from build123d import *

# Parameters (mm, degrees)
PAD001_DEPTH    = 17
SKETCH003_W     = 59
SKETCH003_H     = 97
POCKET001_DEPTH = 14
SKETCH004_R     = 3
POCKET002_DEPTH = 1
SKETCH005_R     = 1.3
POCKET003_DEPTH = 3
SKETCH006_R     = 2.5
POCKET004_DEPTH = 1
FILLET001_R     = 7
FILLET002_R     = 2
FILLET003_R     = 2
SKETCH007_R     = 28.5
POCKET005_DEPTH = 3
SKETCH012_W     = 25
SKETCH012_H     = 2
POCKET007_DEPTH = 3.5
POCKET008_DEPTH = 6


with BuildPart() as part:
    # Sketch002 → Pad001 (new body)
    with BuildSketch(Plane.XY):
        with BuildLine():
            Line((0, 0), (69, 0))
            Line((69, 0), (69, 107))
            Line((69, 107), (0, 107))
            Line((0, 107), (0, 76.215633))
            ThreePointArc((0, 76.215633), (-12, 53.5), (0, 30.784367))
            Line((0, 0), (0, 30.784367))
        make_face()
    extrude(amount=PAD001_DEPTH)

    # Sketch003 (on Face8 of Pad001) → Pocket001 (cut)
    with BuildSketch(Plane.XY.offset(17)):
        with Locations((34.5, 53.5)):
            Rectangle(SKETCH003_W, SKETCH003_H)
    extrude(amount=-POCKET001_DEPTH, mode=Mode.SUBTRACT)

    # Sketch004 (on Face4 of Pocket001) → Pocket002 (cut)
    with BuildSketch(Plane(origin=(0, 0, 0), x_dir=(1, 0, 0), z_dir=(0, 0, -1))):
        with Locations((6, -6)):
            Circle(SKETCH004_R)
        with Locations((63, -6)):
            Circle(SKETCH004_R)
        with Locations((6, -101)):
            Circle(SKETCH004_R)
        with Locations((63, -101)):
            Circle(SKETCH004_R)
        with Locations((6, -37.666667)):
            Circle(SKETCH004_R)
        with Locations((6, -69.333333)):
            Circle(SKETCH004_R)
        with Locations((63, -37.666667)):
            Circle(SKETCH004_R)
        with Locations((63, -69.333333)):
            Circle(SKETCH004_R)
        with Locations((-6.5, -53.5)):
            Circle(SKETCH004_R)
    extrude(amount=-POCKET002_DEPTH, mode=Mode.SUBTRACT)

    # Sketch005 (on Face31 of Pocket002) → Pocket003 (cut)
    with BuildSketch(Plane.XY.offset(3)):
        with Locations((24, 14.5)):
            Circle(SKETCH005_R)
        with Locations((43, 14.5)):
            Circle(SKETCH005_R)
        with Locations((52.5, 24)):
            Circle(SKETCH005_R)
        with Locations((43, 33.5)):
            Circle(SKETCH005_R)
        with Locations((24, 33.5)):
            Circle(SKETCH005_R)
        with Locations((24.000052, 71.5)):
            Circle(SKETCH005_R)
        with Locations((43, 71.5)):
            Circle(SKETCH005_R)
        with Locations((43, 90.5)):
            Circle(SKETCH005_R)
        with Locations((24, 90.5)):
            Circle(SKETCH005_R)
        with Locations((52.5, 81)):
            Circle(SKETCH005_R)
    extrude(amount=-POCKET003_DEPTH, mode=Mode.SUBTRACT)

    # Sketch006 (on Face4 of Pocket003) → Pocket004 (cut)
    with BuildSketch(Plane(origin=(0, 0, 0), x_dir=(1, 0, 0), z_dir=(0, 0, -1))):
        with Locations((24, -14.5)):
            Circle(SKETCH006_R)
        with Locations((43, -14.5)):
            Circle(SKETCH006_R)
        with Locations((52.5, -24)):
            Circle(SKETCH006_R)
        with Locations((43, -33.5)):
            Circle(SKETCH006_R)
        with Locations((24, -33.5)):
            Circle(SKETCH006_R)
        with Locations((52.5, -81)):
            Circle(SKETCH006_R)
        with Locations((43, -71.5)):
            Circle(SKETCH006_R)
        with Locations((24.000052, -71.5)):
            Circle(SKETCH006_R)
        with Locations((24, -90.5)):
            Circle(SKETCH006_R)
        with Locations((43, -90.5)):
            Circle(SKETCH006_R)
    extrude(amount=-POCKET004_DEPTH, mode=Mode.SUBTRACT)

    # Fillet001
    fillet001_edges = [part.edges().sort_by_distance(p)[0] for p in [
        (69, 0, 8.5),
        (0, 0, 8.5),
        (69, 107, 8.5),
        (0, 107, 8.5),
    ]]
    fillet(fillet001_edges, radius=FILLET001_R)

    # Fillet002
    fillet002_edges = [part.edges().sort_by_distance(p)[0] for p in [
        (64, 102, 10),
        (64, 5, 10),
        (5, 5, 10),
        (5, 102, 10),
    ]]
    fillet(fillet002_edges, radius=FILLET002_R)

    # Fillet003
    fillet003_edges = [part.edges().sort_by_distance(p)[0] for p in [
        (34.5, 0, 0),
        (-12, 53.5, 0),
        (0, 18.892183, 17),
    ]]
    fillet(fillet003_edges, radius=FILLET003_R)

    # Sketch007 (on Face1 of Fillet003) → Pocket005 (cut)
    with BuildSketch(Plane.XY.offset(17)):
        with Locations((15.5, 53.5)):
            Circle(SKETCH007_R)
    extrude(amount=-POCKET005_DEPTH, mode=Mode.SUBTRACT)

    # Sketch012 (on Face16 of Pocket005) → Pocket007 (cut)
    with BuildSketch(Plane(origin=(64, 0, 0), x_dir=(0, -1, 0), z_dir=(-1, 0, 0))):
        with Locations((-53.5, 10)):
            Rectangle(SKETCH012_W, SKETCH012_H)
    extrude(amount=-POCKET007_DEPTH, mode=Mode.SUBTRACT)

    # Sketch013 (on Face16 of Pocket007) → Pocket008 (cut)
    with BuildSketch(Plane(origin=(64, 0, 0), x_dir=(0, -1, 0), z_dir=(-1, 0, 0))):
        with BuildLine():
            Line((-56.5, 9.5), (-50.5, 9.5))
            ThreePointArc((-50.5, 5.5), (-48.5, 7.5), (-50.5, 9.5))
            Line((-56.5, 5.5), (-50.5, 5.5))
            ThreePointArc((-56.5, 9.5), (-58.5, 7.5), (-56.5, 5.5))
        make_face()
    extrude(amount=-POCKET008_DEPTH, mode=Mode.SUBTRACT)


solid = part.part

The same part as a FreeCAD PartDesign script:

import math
import FreeCAD as App
import Part
import Sketcher
from FreeCAD import Vector
Q = App.Units.Quantity


def edges_at(feature, points):
    """Names of the edges that pass closest to the given points."""
    edges = feature.Shape.Edges
    near = lambda p: min(range(len(edges)), key=lambda i: edges[i].distToShape(Part.Vertex(*p))[0])
    return sorted({f"Edge{near(p) + 1}" for p in points})

doc = App.newDocument("Part")
body = doc.addObject("PartDesign::Body", "Body")

# Sketch on XY plane
sketch1 = body.newObject("Sketcher::SketchObject", "Sketch")
sketch1.AttachmentSupport = (doc.getObject("XY_Plane"), [""])
sketch1.MapMode = "FlatFace"
sketch1.addGeometry([
    Part.LineSegment(Vector(0, 0, 0), Vector(69, 0, 0)),  # 0
    Part.LineSegment(Vector(69, 0, 0), Vector(69, 107, 0)),  # 1
    Part.LineSegment(Vector(69, 107, 0), Vector(0, 107, 0)),  # 2
    Part.LineSegment(Vector(0, 107, 0), Vector(0, 76.215633, 0)),  # 3
    Part.ArcOfCircle(Part.Circle(Vector(15.499999, 53.5, 0), Vector(0, 0, 1), 27.499999), math.radians(124.307651), math.radians(235.692349)),  # 4
    Part.LineSegment(Vector(0, 30.784367, 0), Vector(0, 0, 0)),  # 5
], False)
sketch1.addConstraint([
    Sketcher.Constraint("Coincident", 0, 2, 1, 1),
    Sketcher.Constraint("Coincident", 1, 2, 2, 1),
    Sketcher.Constraint("Coincident", 2, 2, 3, 1),
    Sketcher.Constraint("Coincident", 3, 2, 4, 1),
    Sketcher.Constraint("Coincident", 4, 2, 5, 1),
    Sketcher.Constraint("Coincident", 5, 2, 0, 1),
    Sketcher.Constraint("Horizontal", 0),
    Sketcher.Constraint("Vertical", 1),
    Sketcher.Constraint("Horizontal", 2),
    Sketcher.Constraint("Vertical", 3),
    Sketcher.Constraint("Vertical", 5),
    Sketcher.Constraint("Coincident", 5, 2, -1, 1),
    Sketcher.Constraint("PointOnObject", 2, 2, -2),
    Sketcher.Constraint("Equal", 3, 5),
    Sketcher.Constraint("Radius", 4, Q("27.499999 mm")),
    Sketcher.Constraint("DistanceX", 0, 1, 0, 2, Q("69 mm")),
    Sketcher.Constraint("DistanceY", 1, 1, 1, 2, Q("107 mm")),
    Sketcher.Constraint("DistanceX", -1, 1, 4, 3, Q("15.499999 mm")),
])
pad1 = body.newObject("PartDesign::Pad", "Pad")
pad1.Profile = sketch1
pad1.Length = 17

# Sketch on XY plane
sketch2 = body.newObject("Sketcher::SketchObject", "Sketch001")
sketch2.AttachmentSupport = (doc.getObject("XY_Plane"), [""])
sketch2.MapMode = "FlatFace"
sketch2.AttachmentOffset = App.Placement(Vector(0, 0, 17), App.Rotation())
sketch2.addGeometry([
    Part.LineSegment(Vector(5, 102, 0), Vector(5, 5, 0)),
    Part.LineSegment(Vector(5, 5, 0), Vector(64, 5, 0)),
    Part.LineSegment(Vector(64, 5, 0), Vector(64, 102, 0)),
    Part.LineSegment(Vector(64, 102, 0), Vector(5, 102, 0)),
], False)
sketch2.addConstraint([
    Sketcher.Constraint("Coincident", 0, 2, 1, 1),
    Sketcher.Constraint("Coincident", 1, 2, 2, 1),
    Sketcher.Constraint("Coincident", 2, 2, 3, 1),
    Sketcher.Constraint("Coincident", 3, 2, 0, 1),
    Sketcher.Constraint("Vertical", 0),
    Sketcher.Constraint("Horizontal", 1),
    Sketcher.Constraint("Vertical", 2),
    Sketcher.Constraint("Horizontal", 3),
    Sketcher.Constraint("DistanceX", 1, 1, 1, 2, Q("59 mm")),
    Sketcher.Constraint("DistanceY", 0, 2, 0, 1, Q("97 mm")),
    Sketcher.Constraint("DistanceX", -1, 1, 0, 2, Q("5 mm")),
    Sketcher.Constraint("DistanceY", -1, 1, 0, 2, Q("5 mm")),
])
pocket1 = body.newObject("PartDesign::Pocket", "Pocket")
pocket1.Profile = sketch2
pocket1.Length = 14

# Sketch on XY plane
sketch3 = body.newObject("Sketcher::SketchObject", "Sketch002")
sketch3.AttachmentSupport = (doc.getObject("XY_Plane"), [""])
sketch3.MapMode = "FlatFace"
sketch3.addGeometry([
    Part.Circle(Vector(6, 6, 0), Vector(0, 0, 1), 3),  # 0
    Part.Circle(Vector(63, 6, 0), Vector(0, 0, 1), 3),  # 1
    Part.Circle(Vector(6, 101, 0), Vector(0, 0, 1), 3),  # 2
    Part.Circle(Vector(63, 101, 0), Vector(0, 0, 1), 3),  # 3
    Part.Circle(Vector(6, 37.666667, 0), Vector(0, 0, 1), 3),  # 4
    Part.Circle(Vector(6, 69.333333, 0), Vector(0, 0, 1), 3),  # 5
    Part.Circle(Vector(63, 37.666667, 0), Vector(0, 0, 1), 3),  # 6
    Part.Circle(Vector(63, 69.333333, 0), Vector(0, 0, 1), 3),  # 7
    Part.Circle(Vector(-6.5, 53.5, 0), Vector(0, 0, 1), 3),  # 8
], False)
sketch3.addConstraint([
    Sketcher.Constraint("Equal", 0, 1),
    Sketcher.Constraint("Equal", 1, 2),
    Sketcher.Constraint("Equal", 2, 3),
    Sketcher.Constraint("Equal", 3, 4),
    Sketcher.Constraint("Equal", 4, 5),
    Sketcher.Constraint("Equal", 5, 6),
    Sketcher.Constraint("Equal", 6, 7),
    Sketcher.Constraint("Equal", 7, 8),
    Sketcher.Constraint("Horizontal", 0, 3, 1, 3),
    Sketcher.Constraint("Horizontal", 2, 3, 3, 3),
    Sketcher.Constraint("Horizontal", 4, 3, 6, 3),
    Sketcher.Constraint("Horizontal", 5, 3, 7, 3),
    Sketcher.Constraint("Vertical", 0, 3, 2, 3),
    Sketcher.Constraint("Vertical", 1, 3, 3, 3),
    Sketcher.Constraint("Vertical", 2, 3, 4, 3),
    Sketcher.Constraint("Vertical", 4, 3, 5, 3),
    Sketcher.Constraint("Vertical", 3, 3, 6, 3),
    Sketcher.Constraint("Vertical", 6, 3, 7, 3),
    Sketcher.Constraint("Diameter", 0, Q("6 mm")),
    Sketcher.Constraint("DistanceX", -1, 1, 0, 3, Q("6 mm")),
    Sketcher.Constraint("DistanceY", -1, 1, 0, 3, Q("6 mm")),
    Sketcher.Constraint("DistanceX", -1, 1, 1, 3, Q("63 mm")),
    Sketcher.Constraint("DistanceY", -1, 1, 2, 3, Q("101 mm")),
    Sketcher.Constraint("DistanceX", 8, 3, -1, 1, Q("6.5 mm")),
    Sketcher.Constraint("DistanceY", -1, 1, 8, 3, Q("53.5 mm")),
    Sketcher.Constraint("DistanceY", -1, 1, 4, 3, Q("37.666667 mm")),
    Sketcher.Constraint("DistanceY", -1, 1, 5, 3, Q("69.333333 mm")),
])
pocket2 = body.newObject("PartDesign::Pocket", "Pocket001")
pocket2.Profile = sketch3
pocket2.Length = 1
pocket2.Reversed = True

# Sketch on XY plane
sketch4 = body.newObject("Sketcher::SketchObject", "Sketch003")
sketch4.AttachmentSupport = (doc.getObject("XY_Plane"), [""])
sketch4.MapMode = "FlatFace"
sketch4.AttachmentOffset = App.Placement(Vector(0, 0, 3), App.Rotation())
sketch4.addGeometry([
    Part.Circle(Vector(24, 14.5, 0), Vector(0, 0, 1), 1.3),  # 0
    Part.Circle(Vector(43, 14.5, 0), Vector(0, 0, 1), 1.3),  # 1
    Part.Circle(Vector(52.5, 24, 0), Vector(0, 0, 1), 1.3),  # 2
    Part.Circle(Vector(43, 33.5, 0), Vector(0, 0, 1), 1.3),  # 3
    Part.Circle(Vector(24, 33.5, 0), Vector(0, 0, 1), 1.3),  # 4
    Part.Circle(Vector(24.000052, 71.5, 0), Vector(0, 0, 1), 1.3),  # 5
    Part.Circle(Vector(43, 71.5, 0), Vector(0, 0, 1), 1.3),  # 6
    Part.Circle(Vector(43, 90.5, 0), Vector(0, 0, 1), 1.3),  # 7
    Part.Circle(Vector(24, 90.5, 0), Vector(0, 0, 1), 1.3),  # 8
    Part.Circle(Vector(52.5, 81, 0), Vector(0, 0, 1), 1.3),  # 9
], False)
sketch4.addConstraint([
    Sketcher.Constraint("Equal", 0, 1),
    Sketcher.Constraint("Equal", 1, 2),
    Sketcher.Constraint("Equal", 2, 3),
    Sketcher.Constraint("Equal", 3, 4),
    Sketcher.Constraint("Equal", 4, 5),
    Sketcher.Constraint("Equal", 5, 6),
    Sketcher.Constraint("Equal", 6, 7),
    Sketcher.Constraint("Equal", 7, 8),
    Sketcher.Constraint("Equal", 8, 9),
    Sketcher.Constraint("Horizontal", 0, 3, 1, 3),
    Sketcher.Constraint("Horizontal", 3, 3, 4, 3),
    Sketcher.Constraint("Horizontal", 5, 3, 6, 3),
    Sketcher.Constraint("Horizontal", 7, 3, 8, 3),
    Sketcher.Constraint("Vertical", 1, 3, 3, 3),
    Sketcher.Constraint("Vertical", 0, 3, 4, 3),
    Sketcher.Constraint("Vertical", 3, 3, 6, 3),
    Sketcher.Constraint("Vertical", 6, 3, 7, 3),
    Sketcher.Constraint("Vertical", 4, 3, 8, 3),
    Sketcher.Constraint("Vertical", 2, 3, 9, 3),
    Sketcher.Constraint("Diameter", 0, Q("2.6 mm")),
    Sketcher.Constraint("DistanceX", -1, 1, 0, 3, Q("24 mm")),
    Sketcher.Constraint("DistanceX", -1, 1, 1, 3, Q("43 mm")),
    Sketcher.Constraint("DistanceY", -1, 1, 2, 3, Q("24 mm")),
    Sketcher.Constraint("DistanceY", -1, 1, 9, 3, Q("81 mm")),
    Sketcher.Constraint("DistanceY", 1, 3, 3, 3, Q("19 mm")),
    Sketcher.Constraint("DistanceY", 4, 3, 5, 3, Q("38 mm")),
    Sketcher.Constraint("DistanceY", 6, 3, 7, 3, Q("19 mm")),
    Sketcher.Constraint("DistanceY", -1, 1, 0, 3, Q("14.5 mm")),
    Sketcher.Constraint("DistanceX", -1, 1, 2, 3, Q("52.5 mm")),
    Sketcher.Constraint("DistanceX", -1, 1, 5, 3, Q("24.000052 mm")),
])
pocket3 = body.newObject("PartDesign::Pocket", "Pocket002")
pocket3.Profile = sketch4
pocket3.Length = 3

# Sketch on XY plane
sketch5 = body.newObject("Sketcher::SketchObject", "Sketch004")
sketch5.AttachmentSupport = (doc.getObject("XY_Plane"), [""])
sketch5.MapMode = "FlatFace"
sketch5.addGeometry([
    Part.Circle(Vector(24, 14.5, 0), Vector(0, 0, 1), 2.5),  # 0
    Part.Circle(Vector(43, 14.5, 0), Vector(0, 0, 1), 2.5),  # 1
    Part.Circle(Vector(52.5, 24, 0), Vector(0, 0, 1), 2.5),  # 2
    Part.Circle(Vector(43, 33.5, 0), Vector(0, 0, 1), 2.5),  # 3
    Part.Circle(Vector(24, 33.5, 0), Vector(0, 0, 1), 2.5),  # 4
    Part.Circle(Vector(52.5, 81, 0), Vector(0, 0, 1), 2.5),  # 5
    Part.Circle(Vector(43, 71.5, 0), Vector(0, 0, 1), 2.5),  # 6
    Part.Circle(Vector(24.000052, 71.5, 0), Vector(0, 0, 1), 2.5),  # 7
    Part.Circle(Vector(24, 90.5, 0), Vector(0, 0, 1), 2.5),  # 8
    Part.Circle(Vector(43, 90.5, 0), Vector(0, 0, 1), 2.5),  # 9
], False)
sketch5.addConstraint([
    Sketcher.Constraint("Equal", 0, 1),
    Sketcher.Constraint("Equal", 1, 2),
    Sketcher.Constraint("Equal", 2, 3),
    Sketcher.Constraint("Equal", 3, 4),
    Sketcher.Constraint("Equal", 4, 5),
    Sketcher.Constraint("Equal", 5, 6),
    Sketcher.Constraint("Equal", 6, 7),
    Sketcher.Constraint("Equal", 7, 8),
    Sketcher.Constraint("Equal", 8, 9),
    Sketcher.Constraint("Horizontal", 0, 3, 1, 3),
    Sketcher.Constraint("Horizontal", 3, 3, 4, 3),
    Sketcher.Constraint("Horizontal", 6, 3, 7, 3),
    Sketcher.Constraint("Horizontal", 8, 3, 9, 3),
    Sketcher.Constraint("Vertical", 1, 3, 3, 3),
    Sketcher.Constraint("Vertical", 0, 3, 4, 3),
    Sketcher.Constraint("Vertical", 2, 3, 5, 3),
    Sketcher.Constraint("Vertical", 3, 3, 6, 3),
    Sketcher.Constraint("Vertical", 4, 3, 8, 3),
    Sketcher.Constraint("Vertical", 6, 3, 9, 3),
    Sketcher.Constraint("Diameter", 0, Q("5 mm")),
    Sketcher.Constraint("DistanceX", -1, 1, 0, 3, Q("24 mm")),
    Sketcher.Constraint("DistanceX", -1, 1, 1, 3, Q("43 mm")),
    Sketcher.Constraint("DistanceY", -1, 1, 2, 3, Q("24 mm")),
    Sketcher.Constraint("DistanceY", -1, 1, 5, 3, Q("81 mm")),
    Sketcher.Constraint("DistanceY", 1, 3, 3, 3, Q("19 mm")),
    Sketcher.Constraint("DistanceY", 3, 3, 6, 3, Q("38 mm")),
    Sketcher.Constraint("DistanceY", 7, 3, 8, 3, Q("19 mm")),
    Sketcher.Constraint("DistanceY", -1, 1, 0, 3, Q("14.5 mm")),
    Sketcher.Constraint("DistanceX", -1, 1, 2, 3, Q("52.5 mm")),
    Sketcher.Constraint("DistanceX", -1, 1, 7, 3, Q("24.000052 mm")),
])
pocket4 = body.newObject("PartDesign::Pocket", "Pocket003")
pocket4.Profile = sketch5
pocket4.Length = 1
pocket4.Reversed = True
doc.recompute()

fillet = body.newObject("PartDesign::Fillet", "Fillet")
fillet.Base = (pocket4, edges_at(pocket4, [
    (69, 0, 8.5),
    (0, 0, 8.5),
    (69, 107, 8.5),
    (0, 107, 8.5),
]))
fillet.Radius = 7
doc.recompute()

fillet2 = body.newObject("PartDesign::Fillet", "Fillet001")
fillet2.Base = (fillet, edges_at(fillet, [
    (64, 102, 10),
    (64, 5, 10),
    (5, 5, 10),
    (5, 102, 10),
]))
fillet2.Radius = 2
doc.recompute()

fillet3 = body.newObject("PartDesign::Fillet", "Fillet002")
fillet3.Base = (fillet2, edges_at(fillet2, [(34.5, 0, 0), (-12, 53.5, 0), (0, 18.892, 17)]))
fillet3.Radius = 2

# Sketch on XY plane
sketch6 = body.newObject("Sketcher::SketchObject", "Sketch005")
sketch6.AttachmentSupport = (doc.getObject("XY_Plane"), [""])
sketch6.MapMode = "FlatFace"
sketch6.AttachmentOffset = App.Placement(Vector(0, 0, 17), App.Rotation())
sketch6.addGeometry(Part.Circle(Vector(15.5, 53.5, 0), Vector(0, 0, 1), 28.5), False)
sketch6.addConstraint([
    Sketcher.Constraint("Diameter", 0, Q("57 mm")),
    Sketcher.Constraint("DistanceX", -1, 1, 0, 3, Q("15.5 mm")),
    Sketcher.Constraint("DistanceY", -1, 1, 0, 3, Q("53.5 mm")),
])
pocket5 = body.newObject("PartDesign::Pocket", "Pocket004")
pocket5.Profile = sketch6
pocket5.Length = 3

# Sketch on YZ plane
sketch7 = body.newObject("Sketcher::SketchObject", "Sketch006")
sketch7.AttachmentSupport = (doc.getObject("YZ_Plane"), [""])
sketch7.MapMode = "FlatFace"
sketch7.AttachmentOffset = App.Placement(Vector(0, 0, 64), App.Rotation())
sketch7.addGeometry([
    Part.LineSegment(Vector(66, 11, 0), Vector(66, 9, 0)),
    Part.LineSegment(Vector(66, 9, 0), Vector(41, 9, 0)),
    Part.LineSegment(Vector(41, 9, 0), Vector(41, 11, 0)),
    Part.LineSegment(Vector(41, 11, 0), Vector(66, 11, 0)),
], False)
sketch7.addConstraint([
    Sketcher.Constraint("Coincident", 0, 2, 1, 1),
    Sketcher.Constraint("Coincident", 1, 2, 2, 1),
    Sketcher.Constraint("Coincident", 2, 2, 3, 1),
    Sketcher.Constraint("Coincident", 3, 2, 0, 1),
    Sketcher.Constraint("Vertical", 0),
    Sketcher.Constraint("Horizontal", 1),
    Sketcher.Constraint("Vertical", 2),
    Sketcher.Constraint("Horizontal", 3),
    Sketcher.Constraint("DistanceX", 1, 2, 1, 1, Q("25 mm")),
    Sketcher.Constraint("DistanceY", 0, 2, 0, 1, Q("2 mm")),
    Sketcher.Constraint("DistanceX", -1, 1, 0, 2, Q("66 mm")),
    Sketcher.Constraint("DistanceY", -1, 1, 0, 2, Q("9 mm")),
])
pocket6 = body.newObject("PartDesign::Pocket", "Pocket005")
pocket6.Profile = sketch7
pocket6.Length = 3.5
pocket6.Reversed = True

# Sketch on YZ plane
sketch8 = body.newObject("Sketcher::SketchObject", "Sketch007")
sketch8.AttachmentSupport = (doc.getObject("YZ_Plane"), [""])
sketch8.MapMode = "FlatFace"
sketch8.AttachmentOffset = App.Placement(Vector(0, 0, 64), App.Rotation())
sketch8.addGeometry([
    Part.LineSegment(Vector(50.5, 9.5, 0), Vector(56.5, 9.5, 0)),
    Part.ArcOfCircle(Part.Circle(Vector(56.5, 7.5, 0), Vector(0, 0, 1), 2), math.radians(-90), math.radians(90)),
    Part.LineSegment(Vector(56.5, 5.5, 0), Vector(50.5, 5.5, 0)),
    Part.ArcOfCircle(Part.Circle(Vector(50.5, 7.5, 0), Vector(0, 0, 1), 2), math.radians(90), math.radians(270)),
], False)
sketch8.addConstraint([
    Sketcher.Constraint("Tangent", 0, 2, 1, 2),
    Sketcher.Constraint("Tangent", 1, 1, 2, 1),
    Sketcher.Constraint("Tangent", 2, 2, 3, 2),
    Sketcher.Constraint("Tangent", 3, 1, 0, 1),
    Sketcher.Constraint("Horizontal", 0),
    Sketcher.Constraint("Horizontal", 2),
    Sketcher.Constraint("Radius", 1, Q("2 mm")),
    Sketcher.Constraint("DistanceX", 0, 1, 0, 2, Q("6 mm")),
    Sketcher.Constraint("DistanceX", -1, 1, 1, 3, Q("56.5 mm")),
    Sketcher.Constraint("DistanceY", -1, 1, 1, 3, Q("7.5 mm")),
])
pocket7 = body.newObject("PartDesign::Pocket", "Pocket006")
pocket7.Profile = sketch8
pocket7.Length = 6
pocket7.Reversed = True

doc.recompute()
